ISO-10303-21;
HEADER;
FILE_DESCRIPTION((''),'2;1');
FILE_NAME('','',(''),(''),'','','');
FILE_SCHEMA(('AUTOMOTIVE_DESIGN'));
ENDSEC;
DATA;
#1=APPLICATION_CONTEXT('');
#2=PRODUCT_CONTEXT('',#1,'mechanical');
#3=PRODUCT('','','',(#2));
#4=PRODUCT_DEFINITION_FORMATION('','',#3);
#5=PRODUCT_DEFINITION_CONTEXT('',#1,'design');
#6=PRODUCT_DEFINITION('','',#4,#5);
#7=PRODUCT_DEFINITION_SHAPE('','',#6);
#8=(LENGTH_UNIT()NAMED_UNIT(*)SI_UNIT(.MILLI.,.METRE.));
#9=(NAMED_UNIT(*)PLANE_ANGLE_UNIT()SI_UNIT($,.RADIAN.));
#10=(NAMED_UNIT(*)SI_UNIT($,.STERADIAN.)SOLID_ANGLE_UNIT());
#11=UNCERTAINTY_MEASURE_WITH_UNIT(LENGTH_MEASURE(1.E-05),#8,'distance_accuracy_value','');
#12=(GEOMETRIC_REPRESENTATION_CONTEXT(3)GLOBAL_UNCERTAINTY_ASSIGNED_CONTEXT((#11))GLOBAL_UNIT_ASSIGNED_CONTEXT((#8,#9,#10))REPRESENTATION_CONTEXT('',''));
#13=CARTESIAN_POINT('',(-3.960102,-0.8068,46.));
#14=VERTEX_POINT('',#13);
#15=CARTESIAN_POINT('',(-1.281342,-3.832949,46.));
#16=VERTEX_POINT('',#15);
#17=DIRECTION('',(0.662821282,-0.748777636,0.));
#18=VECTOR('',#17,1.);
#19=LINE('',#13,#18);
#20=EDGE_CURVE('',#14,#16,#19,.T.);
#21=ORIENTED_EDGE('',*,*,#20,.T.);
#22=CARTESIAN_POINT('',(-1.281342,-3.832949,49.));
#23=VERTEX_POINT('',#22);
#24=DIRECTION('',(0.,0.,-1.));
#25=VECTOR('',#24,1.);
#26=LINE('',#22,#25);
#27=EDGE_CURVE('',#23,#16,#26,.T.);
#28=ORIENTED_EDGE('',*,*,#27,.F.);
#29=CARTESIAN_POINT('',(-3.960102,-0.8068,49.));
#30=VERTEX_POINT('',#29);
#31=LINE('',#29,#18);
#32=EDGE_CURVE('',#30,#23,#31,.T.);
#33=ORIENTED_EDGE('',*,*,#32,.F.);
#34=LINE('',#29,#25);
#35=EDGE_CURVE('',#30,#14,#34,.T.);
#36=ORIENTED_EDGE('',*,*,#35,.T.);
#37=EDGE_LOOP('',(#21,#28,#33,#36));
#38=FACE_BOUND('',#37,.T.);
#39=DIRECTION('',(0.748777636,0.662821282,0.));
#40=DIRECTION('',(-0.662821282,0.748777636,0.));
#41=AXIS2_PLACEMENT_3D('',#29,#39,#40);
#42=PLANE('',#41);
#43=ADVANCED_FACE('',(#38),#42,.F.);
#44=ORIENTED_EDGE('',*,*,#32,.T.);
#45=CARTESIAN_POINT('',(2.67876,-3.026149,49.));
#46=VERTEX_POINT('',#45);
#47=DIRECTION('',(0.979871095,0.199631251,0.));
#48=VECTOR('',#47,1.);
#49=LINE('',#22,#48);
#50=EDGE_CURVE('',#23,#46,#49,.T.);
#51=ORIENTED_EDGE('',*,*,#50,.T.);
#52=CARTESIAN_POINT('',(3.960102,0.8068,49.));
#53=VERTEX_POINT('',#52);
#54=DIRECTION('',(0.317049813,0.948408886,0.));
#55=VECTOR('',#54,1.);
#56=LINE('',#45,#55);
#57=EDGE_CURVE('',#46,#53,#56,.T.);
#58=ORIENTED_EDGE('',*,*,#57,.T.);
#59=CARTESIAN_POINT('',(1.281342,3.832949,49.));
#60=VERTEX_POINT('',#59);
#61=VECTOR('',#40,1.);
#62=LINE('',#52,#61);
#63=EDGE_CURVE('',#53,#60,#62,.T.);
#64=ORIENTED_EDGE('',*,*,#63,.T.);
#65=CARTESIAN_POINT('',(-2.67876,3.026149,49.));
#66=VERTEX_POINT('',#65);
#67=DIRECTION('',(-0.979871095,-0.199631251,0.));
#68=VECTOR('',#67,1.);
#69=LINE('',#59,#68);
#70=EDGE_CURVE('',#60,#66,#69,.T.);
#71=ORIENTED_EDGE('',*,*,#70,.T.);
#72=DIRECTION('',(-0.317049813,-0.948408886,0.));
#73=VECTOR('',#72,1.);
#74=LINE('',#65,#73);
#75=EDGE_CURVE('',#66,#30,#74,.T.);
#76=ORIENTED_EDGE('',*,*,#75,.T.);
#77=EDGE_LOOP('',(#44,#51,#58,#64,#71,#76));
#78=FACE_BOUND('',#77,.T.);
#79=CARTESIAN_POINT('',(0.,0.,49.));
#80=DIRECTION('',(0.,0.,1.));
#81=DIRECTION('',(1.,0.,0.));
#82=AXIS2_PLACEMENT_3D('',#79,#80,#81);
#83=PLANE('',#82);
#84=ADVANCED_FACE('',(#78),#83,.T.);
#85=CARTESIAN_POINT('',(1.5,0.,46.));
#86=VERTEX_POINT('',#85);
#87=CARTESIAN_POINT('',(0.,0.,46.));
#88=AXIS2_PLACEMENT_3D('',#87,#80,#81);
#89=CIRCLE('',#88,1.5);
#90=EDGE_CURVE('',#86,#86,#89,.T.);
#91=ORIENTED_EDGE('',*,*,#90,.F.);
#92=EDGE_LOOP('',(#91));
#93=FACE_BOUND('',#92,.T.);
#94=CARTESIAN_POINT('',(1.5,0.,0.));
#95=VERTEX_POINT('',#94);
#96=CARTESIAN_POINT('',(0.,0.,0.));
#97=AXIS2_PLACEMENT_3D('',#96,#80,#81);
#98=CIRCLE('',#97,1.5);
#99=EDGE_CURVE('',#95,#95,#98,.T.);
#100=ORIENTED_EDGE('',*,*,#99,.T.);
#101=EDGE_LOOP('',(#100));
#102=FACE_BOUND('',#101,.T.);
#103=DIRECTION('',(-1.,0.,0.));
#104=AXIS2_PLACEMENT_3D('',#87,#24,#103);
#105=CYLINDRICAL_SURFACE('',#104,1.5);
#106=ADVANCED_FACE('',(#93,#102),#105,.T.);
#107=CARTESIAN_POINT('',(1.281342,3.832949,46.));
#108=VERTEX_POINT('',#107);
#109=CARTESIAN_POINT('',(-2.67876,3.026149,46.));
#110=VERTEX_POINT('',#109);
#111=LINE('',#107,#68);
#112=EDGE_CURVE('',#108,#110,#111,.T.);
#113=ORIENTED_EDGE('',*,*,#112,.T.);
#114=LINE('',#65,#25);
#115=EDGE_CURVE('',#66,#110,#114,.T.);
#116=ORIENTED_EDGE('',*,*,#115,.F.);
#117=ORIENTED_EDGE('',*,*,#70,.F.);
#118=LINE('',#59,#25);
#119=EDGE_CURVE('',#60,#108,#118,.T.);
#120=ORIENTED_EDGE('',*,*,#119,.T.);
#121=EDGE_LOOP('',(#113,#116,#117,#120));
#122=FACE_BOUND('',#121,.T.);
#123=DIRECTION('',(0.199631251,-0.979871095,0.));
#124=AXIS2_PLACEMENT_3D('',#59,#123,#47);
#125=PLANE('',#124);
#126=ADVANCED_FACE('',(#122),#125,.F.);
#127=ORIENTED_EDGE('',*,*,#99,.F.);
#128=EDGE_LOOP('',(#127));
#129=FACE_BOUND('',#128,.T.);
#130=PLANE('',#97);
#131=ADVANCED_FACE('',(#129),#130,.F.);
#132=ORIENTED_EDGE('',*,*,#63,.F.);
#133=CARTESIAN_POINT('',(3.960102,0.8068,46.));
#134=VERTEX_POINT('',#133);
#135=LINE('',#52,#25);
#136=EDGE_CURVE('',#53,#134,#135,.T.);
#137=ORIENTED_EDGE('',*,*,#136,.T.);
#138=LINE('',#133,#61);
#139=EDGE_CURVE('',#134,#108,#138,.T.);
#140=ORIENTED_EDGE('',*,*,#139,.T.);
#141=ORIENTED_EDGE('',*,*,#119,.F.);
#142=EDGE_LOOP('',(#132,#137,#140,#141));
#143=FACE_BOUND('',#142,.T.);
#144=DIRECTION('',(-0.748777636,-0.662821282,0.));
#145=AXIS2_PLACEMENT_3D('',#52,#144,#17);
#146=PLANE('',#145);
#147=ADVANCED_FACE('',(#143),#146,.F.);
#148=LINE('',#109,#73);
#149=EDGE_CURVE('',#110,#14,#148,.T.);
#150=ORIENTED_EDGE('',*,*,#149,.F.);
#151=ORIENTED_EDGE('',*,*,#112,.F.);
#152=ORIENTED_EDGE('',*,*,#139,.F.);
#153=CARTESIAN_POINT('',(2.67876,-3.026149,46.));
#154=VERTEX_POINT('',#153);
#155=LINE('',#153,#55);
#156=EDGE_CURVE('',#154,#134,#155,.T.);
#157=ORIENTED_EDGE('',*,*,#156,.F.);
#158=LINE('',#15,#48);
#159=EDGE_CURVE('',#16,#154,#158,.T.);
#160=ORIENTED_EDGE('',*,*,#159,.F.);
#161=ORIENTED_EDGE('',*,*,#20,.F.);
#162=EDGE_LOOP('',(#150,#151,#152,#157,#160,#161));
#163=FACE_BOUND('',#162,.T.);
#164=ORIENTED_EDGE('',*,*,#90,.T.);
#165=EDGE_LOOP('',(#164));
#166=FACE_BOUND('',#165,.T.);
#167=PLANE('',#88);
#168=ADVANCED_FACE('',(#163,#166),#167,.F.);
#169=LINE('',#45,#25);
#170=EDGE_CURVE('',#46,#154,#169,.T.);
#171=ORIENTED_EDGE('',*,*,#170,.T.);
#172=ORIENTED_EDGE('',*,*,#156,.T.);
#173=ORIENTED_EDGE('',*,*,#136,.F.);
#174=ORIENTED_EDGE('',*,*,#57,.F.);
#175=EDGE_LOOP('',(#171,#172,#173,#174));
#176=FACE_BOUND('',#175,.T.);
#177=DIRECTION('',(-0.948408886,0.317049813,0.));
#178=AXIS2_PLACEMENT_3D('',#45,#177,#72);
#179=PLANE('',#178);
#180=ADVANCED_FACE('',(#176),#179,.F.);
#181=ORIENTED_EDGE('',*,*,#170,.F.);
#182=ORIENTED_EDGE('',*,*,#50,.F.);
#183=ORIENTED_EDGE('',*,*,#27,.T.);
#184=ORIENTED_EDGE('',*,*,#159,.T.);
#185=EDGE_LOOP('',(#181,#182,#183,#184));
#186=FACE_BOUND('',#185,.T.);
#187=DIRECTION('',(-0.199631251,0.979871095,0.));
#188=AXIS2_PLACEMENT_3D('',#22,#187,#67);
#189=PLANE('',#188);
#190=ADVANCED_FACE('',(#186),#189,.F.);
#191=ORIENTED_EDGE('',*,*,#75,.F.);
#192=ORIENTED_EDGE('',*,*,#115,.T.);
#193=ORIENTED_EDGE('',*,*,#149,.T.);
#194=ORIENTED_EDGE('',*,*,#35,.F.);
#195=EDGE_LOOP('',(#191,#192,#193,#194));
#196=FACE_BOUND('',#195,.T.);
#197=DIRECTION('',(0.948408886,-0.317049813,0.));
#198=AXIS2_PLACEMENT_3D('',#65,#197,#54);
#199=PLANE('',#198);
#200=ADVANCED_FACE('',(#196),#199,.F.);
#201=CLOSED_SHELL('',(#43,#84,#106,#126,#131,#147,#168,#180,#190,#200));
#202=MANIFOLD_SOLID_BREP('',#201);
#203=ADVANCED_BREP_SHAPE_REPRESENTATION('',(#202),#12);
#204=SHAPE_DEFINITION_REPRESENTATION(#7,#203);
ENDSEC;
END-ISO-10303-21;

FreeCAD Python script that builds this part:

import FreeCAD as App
import Part
import Sketcher

V = App.Vector

doc = App.newDocument("Part")
body = doc.addObject("PartDesign::Body", "Body")

sketch1 = doc.addObject("Sketcher::SketchObject", "Sketch")
body.addObject(sketch1)
sketch1.AttachmentSupport = (doc.XY_Plane, [""])
sketch1.MapMode = "FlatFace"
sketch1.addGeometry(Part.Circle(V(0, 0, 0), V(0, 0, 1), 1.5), False)
sketch1.addConstraint([
    Sketcher.Constraint("Coincident", 0, 3, -1, 1),
    Sketcher.Constraint("Diameter", 0, 3.0),
])
pad1 = doc.addObject("PartDesign::Pad", "Pad")
body.addObject(pad1)
pad1.Profile = sketch1
pad1.Length = 46

sketch2 = doc.addObject("Sketcher::SketchObject", "Sketch001")
body.addObject(sketch2)
sketch2.AttachmentSupport = (doc.XY_Plane, [""])
sketch2.MapMode = "FlatFace"
sketch2.AttachmentOffset = App.Placement(V(0, 0, 46), App.Rotation())
sketch2.addGeometry([
    Part.LineSegment(V(1.3, 3.8, 0), V(-2.7, 3, 0)),
    Part.LineSegment(V(-2.7, 3, 0), V(-4, -0.8, 0)),
    Part.LineSegment(V(-4, -0.8, 0), V(-1.3, -3.8, 0)),
    Part.LineSegment(V(-1.3, -3.8, 0), V(2.7, -3, 0)),
    Part.LineSegment(V(2.7, -3, 0), V(4, 0.8, 0)),
    Part.LineSegment(V(4, 0.8, 0), V(1.3, 3.8, 0)),
], False)
sketch2.addConstraint([
    Sketcher.Constraint("Coincident", 0, 2, 1, 1),
    Sketcher.Constraint("Coincident", 1, 2, 2, 1),
    Sketcher.Constraint("Coincident", 2, 2, 3, 1),
    Sketcher.Constraint("Coincident", 3, 2, 4, 1),
    Sketcher.Constraint("Coincident", 4, 2, 5, 1),
    Sketcher.Constraint("Coincident", 5, 2, 0, 1),
    Sketcher.Constraint("Symmetric", 0, 2, 3, 2, -1, 1),
    Sketcher.Constraint("Symmetric", 1, 2, 4, 2, -1, 1),
    Sketcher.Constraint("Symmetric", 2, 2, 5, 2, -1, 1),
    Sketcher.Constraint("Equal", 0, 1),
    Sketcher.Constraint("Equal", 1, 2),
    Sketcher.Constraint("DistanceX", 1, 2, -1, 1, 3.960102),
    Sketcher.Constraint("DistanceY", 1, 2, -1, 1, 0.8068),
    Sketcher.Constraint("DistanceX", 2, 2, 3, 2, 3.960102),
    Sketcher.Constraint("DistanceY", 2, 2, 3, 2, 0.8068),
])
pad2 = doc.addObject("PartDesign::Pad", "Pad001")
body.addObject(pad2)
pad2.Profile = sketch2
pad2.Length = 3

doc.recompute()
